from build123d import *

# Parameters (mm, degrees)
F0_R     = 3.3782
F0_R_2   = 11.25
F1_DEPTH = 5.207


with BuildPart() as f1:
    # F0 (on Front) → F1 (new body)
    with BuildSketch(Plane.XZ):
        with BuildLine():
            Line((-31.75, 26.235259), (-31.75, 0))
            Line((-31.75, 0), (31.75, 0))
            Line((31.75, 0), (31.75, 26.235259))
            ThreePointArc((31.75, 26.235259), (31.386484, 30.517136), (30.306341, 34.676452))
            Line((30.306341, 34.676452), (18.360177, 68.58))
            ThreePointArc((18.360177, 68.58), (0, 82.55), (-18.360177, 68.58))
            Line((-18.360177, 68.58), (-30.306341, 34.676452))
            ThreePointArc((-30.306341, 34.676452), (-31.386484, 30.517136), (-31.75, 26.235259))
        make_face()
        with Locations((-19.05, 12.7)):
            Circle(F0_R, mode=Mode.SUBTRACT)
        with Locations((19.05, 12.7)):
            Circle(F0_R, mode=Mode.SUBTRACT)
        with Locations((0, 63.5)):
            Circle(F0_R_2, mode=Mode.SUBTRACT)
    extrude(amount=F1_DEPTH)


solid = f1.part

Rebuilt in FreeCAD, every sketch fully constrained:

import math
import FreeCAD as App
import Part
import Sketcher
Q = App.Units.Quantity

doc = App.newDocument("Part")
body = doc.addObject("PartDesign::Body", "Body")

sketch1 = doc.addObject("Sketcher::SketchObject", "Sketch")
body.addObject(sketch1)
sketch1.AttachmentSupport = (doc.XZ_Plane, [""])
sketch1.MapMode = "FlatFace"
sketch1.addGeometry(Part.LineSegment(App.Vector(-31.75, 26.235259, 0), App.Vector(-31.75, 0, 0)), False)
sketch1.addGeometry(Part.LineSegment(App.Vector(-31.75, 0, 0), App.Vector(31.75, 0, 0)), False)
sketch1.addGeometry(Part.LineSegment(App.Vector(31.75, 0, 0), App.Vector(31.75, 26.235259, 0)), False)
sketch1.addGeometry(Part.ArcOfCircle(Part.Circle(App.Vector(6.349993, 26.235259, 0), App.Vector(0, 0, 1), 25.400007), math.radians(0.000001), math.radians(19.41028)), False)
sketch1.addGeometry(Part.LineSegment(App.Vector(30.306341, 34.676452, 0), App.Vector(18.360177, 68.58, 0)), False)
sketch1.addGeometry(Part.ArcOfCircle(Part.Circle(App.Vector(0, 63.5, 0), App.Vector(0, 0, 1), 19.05), math.radians(15.46601), math.radians(164.53399)), False)
sketch1.addGeometry(Part.LineSegment(App.Vector(-18.360177, 68.58, 0), App.Vector(-30.306341, 34.676452, 0)), False)
sketch1.addGeometry(Part.ArcOfCircle(Part.Circle(App.Vector(-6.349993, 26.235259, 0), App.Vector(0, 0, 1), 25.400007), math.radians(160.58972), math.radians(179.999999)), False)
sketch1.addGeometry(Part.Circle(App.Vector(-19.05, 12.7, 0), App.Vector(0, 0, 1), 3.3782), False)
sketch1.addGeometry(Part.Circle(App.Vector(19.05, 12.7, 0), App.Vector(0, 0, 1), 3.3782), False)
sketch1.addGeometry(Part.Circle(App.Vector(0, 63.5, 0), App.Vector(0, 0, 1), 11.25), False)
sketch1.addConstraint(Sketcher.Constraint("Coincident", 0, 2, 1, 1))
sketch1.addConstraint(Sketcher.Constraint("Coincident", 1, 2, 2, 1))
sketch1.addConstraint(Sketcher.Constraint("Tangent", 2, 2, 3, 1))
sketch1.addConstraint(Sketcher.Constraint("Tangent", 3, 2, 4, 1))
sketch1.addConstraint(Sketcher.Constraint("Coincident", 4, 2, 5, 1))
sketch1.addConstraint(Sketcher.Constraint("Coincident", 5, 2, 6, 1))
sketch1.addConstraint(Sketcher.Constraint("Tangent", 6, 2, 7, 1))
sketch1.addConstraint(Sketcher.Constraint("Tangent", 7, 2, 0, 1))
sketch1.addConstraint(Sketcher.Constraint("Vertical", 0))
sketch1.addConstraint(Sketcher.Constraint("Horizontal", 1))
sketch1.addConstraint(Sketcher.Constraint("Vertical", 2))
sketch1.addConstraint(Sketcher.Constraint("Coincident", 10, 3, 5, 3))
sketch1.addConstraint(Sketcher.Constraint("Equal", 3, 7))
sketch1.addConstraint(Sketcher.Constraint("Equal", 8, 9))
sketch1.addConstraint(Sketcher.Constraint("Symmetric", 0, 2, 1, 2, -1, 1))
sketch1.addConstraint(Sketcher.Constraint("Symmetric", 8, 3, 9, 3, -2))
sketch1.addConstraint(Sketcher.Constraint("Symmetric", 4, 2, 5, 2, -2))
sketch1.addConstraint(Sketcher.Constraint("Horizontal", 3, 3, 7, 3))
sketch1.addConstraint(Sketcher.Constraint("Radius", 5, Q("0.75 in")))
sketch1.addConstraint(Sketcher.Constraint("Diameter", 8, Q("0.266 in")))
sketch1.addConstraint(Sketcher.Constraint("DistanceX", 1, 1, 1, 2, Q("2.5 in")))
sketch1.addConstraint(Sketcher.Constraint("DistanceY", 8, 3, 5, 3, Q("2 in")))
sketch1.addConstraint(Sketcher.Constraint("DistanceX", 0, 2, 9, 3, Q("2 in")))
sketch1.addConstraint(Sketcher.Constraint("DistanceY", -1, 1, 5, 3, Q("2.5 in")))
sketch1.addConstraint(Sketcher.Constraint("DistanceY", -1, 1, 4, 2, Q("2.7 in")))
sketch1.addConstraint(Sketcher.Constraint("Diameter", 10, Q("22.5 mm")))
sketch1.addConstraint(Sketcher.Constraint("Radius", 3, Q("25.400007 mm")))
sketch1.addConstraint(Sketcher.Constraint("DistanceY", 0, 2, 0, 1, Q("26.235259 mm")))
pad1 = doc.addObject("PartDesign::Pad", "Pad")
body.addObject(pad1)
pad1.Profile = sketch1
pad1.Length = Q("0.205 in")

doc.recompute()
